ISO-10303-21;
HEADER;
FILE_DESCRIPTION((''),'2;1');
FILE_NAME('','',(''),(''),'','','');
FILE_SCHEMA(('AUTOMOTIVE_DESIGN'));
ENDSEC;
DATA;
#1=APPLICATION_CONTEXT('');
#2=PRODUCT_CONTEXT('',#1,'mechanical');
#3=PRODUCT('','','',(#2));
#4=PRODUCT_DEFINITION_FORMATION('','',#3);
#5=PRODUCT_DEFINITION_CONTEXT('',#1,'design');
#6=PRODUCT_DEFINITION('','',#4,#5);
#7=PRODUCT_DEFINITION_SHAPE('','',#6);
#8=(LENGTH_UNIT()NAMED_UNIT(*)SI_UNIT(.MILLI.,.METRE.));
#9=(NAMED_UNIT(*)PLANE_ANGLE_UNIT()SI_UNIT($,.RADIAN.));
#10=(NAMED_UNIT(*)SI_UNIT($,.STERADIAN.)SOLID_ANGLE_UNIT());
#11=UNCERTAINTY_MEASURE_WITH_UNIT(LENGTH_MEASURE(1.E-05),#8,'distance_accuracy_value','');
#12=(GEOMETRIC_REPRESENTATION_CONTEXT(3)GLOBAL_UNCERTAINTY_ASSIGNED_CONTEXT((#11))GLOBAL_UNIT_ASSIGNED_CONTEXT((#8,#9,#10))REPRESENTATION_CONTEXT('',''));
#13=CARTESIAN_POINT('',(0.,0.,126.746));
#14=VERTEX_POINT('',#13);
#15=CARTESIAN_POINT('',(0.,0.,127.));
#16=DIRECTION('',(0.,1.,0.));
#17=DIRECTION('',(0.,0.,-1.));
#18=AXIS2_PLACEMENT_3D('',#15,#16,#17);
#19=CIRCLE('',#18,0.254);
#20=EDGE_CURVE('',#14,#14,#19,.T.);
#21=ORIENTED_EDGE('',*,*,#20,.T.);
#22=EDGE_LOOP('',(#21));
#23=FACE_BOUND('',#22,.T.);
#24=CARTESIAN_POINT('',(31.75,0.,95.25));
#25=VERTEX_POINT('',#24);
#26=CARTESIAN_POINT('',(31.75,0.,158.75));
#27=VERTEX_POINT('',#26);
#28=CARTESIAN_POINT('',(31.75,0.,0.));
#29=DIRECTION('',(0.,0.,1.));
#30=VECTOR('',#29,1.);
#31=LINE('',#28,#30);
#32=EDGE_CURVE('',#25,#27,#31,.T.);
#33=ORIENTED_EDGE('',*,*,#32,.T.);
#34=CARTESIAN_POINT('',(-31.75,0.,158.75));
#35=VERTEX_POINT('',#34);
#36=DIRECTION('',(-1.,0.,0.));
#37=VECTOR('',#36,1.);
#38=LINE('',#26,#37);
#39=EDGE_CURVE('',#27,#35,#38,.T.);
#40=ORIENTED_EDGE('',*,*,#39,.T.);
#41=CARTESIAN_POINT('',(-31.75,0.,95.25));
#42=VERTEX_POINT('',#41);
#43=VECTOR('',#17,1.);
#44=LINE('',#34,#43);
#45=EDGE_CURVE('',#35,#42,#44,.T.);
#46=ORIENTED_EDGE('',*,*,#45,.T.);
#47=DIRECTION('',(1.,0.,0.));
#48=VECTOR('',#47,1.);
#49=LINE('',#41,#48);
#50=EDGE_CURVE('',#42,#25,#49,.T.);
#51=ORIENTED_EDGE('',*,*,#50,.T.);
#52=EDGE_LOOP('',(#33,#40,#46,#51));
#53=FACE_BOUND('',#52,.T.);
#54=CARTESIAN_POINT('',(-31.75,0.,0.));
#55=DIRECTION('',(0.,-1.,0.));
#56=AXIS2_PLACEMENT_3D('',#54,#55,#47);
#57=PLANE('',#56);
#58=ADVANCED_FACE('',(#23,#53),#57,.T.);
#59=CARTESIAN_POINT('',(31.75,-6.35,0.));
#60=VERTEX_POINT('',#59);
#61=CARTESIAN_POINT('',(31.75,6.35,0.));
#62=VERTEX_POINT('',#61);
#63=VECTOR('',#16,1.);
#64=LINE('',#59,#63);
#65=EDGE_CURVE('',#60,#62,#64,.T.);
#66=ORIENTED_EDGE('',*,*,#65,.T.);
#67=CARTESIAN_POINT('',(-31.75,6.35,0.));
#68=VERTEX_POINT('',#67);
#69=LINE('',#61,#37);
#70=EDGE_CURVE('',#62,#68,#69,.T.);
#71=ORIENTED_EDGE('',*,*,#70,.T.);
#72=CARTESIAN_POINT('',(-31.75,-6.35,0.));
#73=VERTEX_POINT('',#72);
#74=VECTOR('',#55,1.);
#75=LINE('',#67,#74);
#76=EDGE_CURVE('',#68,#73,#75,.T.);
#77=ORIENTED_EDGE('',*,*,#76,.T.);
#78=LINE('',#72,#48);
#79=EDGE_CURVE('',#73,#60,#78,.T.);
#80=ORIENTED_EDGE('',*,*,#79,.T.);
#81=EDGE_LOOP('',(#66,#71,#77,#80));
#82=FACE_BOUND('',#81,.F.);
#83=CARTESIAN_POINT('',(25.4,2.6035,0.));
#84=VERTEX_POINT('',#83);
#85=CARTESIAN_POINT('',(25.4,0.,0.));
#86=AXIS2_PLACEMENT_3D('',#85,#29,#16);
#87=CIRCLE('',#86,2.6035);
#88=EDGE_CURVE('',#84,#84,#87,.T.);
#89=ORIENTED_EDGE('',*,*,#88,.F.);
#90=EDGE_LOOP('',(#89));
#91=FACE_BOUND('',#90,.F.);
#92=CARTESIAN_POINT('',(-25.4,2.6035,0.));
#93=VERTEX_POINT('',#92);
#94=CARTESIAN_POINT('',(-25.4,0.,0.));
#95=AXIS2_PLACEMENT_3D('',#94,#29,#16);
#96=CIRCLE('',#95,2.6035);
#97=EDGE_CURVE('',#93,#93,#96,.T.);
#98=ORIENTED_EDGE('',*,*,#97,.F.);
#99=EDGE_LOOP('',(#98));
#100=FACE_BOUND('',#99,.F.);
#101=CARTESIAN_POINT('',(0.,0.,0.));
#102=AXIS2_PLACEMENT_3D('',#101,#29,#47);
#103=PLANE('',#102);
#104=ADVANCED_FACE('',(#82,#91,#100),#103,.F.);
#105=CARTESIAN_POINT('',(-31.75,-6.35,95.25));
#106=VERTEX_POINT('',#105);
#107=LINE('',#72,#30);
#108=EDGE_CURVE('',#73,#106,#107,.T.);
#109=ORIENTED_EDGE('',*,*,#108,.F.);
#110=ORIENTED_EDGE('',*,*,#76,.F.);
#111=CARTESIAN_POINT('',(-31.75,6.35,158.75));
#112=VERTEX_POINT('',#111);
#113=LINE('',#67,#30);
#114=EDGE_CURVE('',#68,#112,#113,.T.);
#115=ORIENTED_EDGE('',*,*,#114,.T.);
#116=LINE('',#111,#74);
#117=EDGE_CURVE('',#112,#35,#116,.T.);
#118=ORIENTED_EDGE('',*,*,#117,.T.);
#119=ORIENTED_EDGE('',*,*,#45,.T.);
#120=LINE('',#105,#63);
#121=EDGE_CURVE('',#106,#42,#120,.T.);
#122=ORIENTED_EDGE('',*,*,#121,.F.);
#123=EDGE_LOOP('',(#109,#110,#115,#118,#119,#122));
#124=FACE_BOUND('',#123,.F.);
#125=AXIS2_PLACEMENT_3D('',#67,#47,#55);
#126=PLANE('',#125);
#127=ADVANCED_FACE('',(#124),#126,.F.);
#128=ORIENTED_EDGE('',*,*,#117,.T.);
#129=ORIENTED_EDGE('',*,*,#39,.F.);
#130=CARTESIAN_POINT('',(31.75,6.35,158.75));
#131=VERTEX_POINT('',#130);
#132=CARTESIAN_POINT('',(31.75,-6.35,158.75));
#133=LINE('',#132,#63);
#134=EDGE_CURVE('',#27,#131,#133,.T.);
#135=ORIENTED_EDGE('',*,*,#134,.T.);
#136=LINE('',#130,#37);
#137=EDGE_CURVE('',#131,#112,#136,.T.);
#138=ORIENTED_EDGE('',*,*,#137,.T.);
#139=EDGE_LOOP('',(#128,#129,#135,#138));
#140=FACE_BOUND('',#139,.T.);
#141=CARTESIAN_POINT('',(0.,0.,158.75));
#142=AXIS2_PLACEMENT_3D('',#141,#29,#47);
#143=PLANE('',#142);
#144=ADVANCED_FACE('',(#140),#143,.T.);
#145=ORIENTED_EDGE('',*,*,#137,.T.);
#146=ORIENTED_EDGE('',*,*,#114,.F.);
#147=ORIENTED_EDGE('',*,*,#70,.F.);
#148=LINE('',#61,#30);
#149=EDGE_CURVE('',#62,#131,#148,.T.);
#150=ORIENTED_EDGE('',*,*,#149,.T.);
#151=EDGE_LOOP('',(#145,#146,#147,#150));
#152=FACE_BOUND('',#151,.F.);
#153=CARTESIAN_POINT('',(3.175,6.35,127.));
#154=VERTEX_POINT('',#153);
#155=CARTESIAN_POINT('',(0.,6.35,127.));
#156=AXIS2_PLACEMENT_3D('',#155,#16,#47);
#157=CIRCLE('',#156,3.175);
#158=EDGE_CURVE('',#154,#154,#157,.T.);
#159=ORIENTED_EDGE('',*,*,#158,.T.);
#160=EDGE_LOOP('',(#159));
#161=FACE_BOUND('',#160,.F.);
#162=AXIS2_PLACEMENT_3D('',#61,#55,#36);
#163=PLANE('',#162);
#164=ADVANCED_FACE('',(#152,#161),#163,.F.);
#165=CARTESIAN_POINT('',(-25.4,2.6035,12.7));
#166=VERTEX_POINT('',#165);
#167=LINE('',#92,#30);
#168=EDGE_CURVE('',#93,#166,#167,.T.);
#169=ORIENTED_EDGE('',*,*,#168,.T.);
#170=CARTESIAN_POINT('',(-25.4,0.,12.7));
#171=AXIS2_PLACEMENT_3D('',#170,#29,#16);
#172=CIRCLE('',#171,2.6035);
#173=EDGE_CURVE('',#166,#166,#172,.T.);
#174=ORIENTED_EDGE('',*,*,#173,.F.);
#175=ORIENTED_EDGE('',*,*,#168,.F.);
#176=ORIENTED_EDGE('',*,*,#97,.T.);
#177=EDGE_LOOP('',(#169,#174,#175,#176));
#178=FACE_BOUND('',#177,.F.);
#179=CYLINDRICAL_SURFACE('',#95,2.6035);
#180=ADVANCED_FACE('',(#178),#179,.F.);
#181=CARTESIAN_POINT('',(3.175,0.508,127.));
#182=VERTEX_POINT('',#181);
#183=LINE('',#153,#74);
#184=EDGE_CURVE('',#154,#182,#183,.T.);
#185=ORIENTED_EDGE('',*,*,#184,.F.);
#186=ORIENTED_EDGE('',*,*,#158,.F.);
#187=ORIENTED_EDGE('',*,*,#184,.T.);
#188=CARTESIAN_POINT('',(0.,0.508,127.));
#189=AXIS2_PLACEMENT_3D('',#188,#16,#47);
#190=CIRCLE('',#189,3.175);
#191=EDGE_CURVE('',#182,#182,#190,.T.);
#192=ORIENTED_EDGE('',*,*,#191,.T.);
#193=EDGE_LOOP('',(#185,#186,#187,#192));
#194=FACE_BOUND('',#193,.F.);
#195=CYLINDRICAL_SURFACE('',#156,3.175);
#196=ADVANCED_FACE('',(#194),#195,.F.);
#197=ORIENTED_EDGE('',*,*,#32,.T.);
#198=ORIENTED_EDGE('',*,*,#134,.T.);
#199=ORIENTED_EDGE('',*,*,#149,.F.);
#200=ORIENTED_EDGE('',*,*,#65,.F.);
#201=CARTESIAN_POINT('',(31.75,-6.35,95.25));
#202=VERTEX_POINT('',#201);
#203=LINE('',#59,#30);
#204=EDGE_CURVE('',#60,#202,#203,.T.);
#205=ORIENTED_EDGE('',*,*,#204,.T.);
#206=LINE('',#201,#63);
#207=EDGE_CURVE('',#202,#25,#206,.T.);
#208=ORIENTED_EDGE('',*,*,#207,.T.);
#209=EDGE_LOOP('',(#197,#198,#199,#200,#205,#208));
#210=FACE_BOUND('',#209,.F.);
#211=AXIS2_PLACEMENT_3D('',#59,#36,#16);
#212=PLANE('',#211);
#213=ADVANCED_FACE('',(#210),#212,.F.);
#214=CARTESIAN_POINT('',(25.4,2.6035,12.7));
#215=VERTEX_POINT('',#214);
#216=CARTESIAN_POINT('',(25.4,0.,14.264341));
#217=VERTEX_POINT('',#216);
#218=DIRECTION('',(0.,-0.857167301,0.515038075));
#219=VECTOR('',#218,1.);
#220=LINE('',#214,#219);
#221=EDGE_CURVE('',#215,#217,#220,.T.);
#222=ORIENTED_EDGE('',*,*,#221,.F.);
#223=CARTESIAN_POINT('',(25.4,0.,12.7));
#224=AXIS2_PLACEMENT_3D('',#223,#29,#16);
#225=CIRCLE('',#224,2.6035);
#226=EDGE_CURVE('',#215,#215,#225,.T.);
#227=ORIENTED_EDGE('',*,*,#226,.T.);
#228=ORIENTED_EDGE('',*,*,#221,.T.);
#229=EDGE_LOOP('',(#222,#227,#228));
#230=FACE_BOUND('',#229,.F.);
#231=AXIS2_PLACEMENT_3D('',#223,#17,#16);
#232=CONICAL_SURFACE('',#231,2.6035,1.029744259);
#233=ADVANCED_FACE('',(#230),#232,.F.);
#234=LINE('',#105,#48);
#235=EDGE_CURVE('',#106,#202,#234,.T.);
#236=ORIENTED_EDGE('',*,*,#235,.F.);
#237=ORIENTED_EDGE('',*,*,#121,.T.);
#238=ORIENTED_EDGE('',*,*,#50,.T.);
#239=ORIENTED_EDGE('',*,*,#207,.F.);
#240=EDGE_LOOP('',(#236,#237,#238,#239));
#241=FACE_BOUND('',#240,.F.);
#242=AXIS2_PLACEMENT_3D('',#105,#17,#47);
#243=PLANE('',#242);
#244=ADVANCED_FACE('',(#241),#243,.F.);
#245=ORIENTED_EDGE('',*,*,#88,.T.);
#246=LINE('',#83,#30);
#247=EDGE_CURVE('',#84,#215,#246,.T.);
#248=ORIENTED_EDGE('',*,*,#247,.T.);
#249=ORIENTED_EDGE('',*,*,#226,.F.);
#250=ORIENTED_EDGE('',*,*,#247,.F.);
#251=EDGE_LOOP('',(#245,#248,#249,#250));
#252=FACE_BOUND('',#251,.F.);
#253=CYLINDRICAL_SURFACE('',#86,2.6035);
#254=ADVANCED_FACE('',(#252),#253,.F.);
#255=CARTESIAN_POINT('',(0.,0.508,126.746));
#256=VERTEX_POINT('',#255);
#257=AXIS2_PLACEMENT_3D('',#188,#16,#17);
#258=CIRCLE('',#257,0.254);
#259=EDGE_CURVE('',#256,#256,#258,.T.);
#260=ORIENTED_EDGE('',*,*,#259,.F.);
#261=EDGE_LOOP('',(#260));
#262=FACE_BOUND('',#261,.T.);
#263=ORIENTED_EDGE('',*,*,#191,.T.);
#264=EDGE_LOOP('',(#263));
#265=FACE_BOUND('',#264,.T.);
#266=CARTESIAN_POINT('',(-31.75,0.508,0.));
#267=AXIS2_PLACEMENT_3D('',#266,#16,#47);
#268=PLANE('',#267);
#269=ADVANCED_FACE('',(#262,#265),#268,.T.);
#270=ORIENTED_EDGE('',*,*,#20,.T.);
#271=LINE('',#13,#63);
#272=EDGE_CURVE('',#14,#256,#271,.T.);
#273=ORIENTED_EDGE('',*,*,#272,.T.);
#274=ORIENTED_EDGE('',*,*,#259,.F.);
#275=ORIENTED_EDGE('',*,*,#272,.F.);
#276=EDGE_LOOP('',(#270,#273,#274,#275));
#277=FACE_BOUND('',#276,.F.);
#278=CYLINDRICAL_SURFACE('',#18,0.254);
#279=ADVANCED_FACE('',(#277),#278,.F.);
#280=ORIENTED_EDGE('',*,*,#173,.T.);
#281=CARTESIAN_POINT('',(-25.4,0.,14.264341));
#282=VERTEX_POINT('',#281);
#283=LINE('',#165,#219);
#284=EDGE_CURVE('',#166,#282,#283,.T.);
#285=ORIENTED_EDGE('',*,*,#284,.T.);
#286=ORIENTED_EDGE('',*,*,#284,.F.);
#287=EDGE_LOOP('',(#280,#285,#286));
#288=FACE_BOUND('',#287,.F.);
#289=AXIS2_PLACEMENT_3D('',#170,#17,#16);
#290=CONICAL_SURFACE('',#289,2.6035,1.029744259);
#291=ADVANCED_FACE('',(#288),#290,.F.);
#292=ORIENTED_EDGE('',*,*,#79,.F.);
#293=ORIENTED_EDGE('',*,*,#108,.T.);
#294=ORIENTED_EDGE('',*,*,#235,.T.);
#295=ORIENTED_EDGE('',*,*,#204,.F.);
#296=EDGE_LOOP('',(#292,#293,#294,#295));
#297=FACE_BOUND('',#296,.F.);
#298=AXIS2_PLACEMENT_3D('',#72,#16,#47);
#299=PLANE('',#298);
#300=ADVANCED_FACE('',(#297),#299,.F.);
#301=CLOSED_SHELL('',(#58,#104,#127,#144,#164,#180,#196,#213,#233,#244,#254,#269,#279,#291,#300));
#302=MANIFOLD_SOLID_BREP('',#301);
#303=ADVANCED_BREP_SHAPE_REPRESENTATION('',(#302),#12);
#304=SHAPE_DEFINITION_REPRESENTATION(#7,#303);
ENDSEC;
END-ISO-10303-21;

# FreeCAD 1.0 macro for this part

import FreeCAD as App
import Part
import Sketcher
from FreeCAD import Vector
Q = App.Units.Quantity


def add_polygon(sketch, points):
    """Adds a closed chain of lines whose ends are joined by coincident constraints."""
    first, n = sketch.GeometryCount, len(points)
    for a, b in zip(points, points[1:] + points[:1]):
        sketch.addGeometry(Part.LineSegment(App.Vector(*a, 0), App.Vector(*b, 0)), False)
    for i in range(n):
        sketch.addConstraint(Sketcher.Constraint("Coincident", first + i, 2, first + (i + 1) % n, 1))

doc = App.newDocument("Part")
params = doc.addObject("Spreadsheet::Sheet", "Params")
for row, (alias, value) in enumerate([
    ("sketch1_width", "2.5 in"),
    ("sketch1_height", "0.5 in"),
    ("pad1_length", "6.25 in"),
    ("sketch2_width", "2.5 in"),
    ("pocket1_length", "0.25 in"),
    ("sketch3_diameter", "0.205 in"),
    ("hole_diameter", "0.205 in"),
    ("hole_depth", "0.5 in"),
    ("sketch4_diameter", "0.25 in"),
    ("pocket2_length", "0.23 in"),
    ("sketch5_diameter", "0.02 in"),
    ("hole2_diameter", "0.02 in"),
], start=1):
    params.set(f"A{row}", alias)
    params.set(f"B{row}", "=" + value)
    params.setAlias(f"B{row}", alias)

body = doc.addObject("PartDesign::Body", "Body")

# Sketch on XY plane
sketch1 = body.newObject("Sketcher::SketchObject", "Sketch")
sketch1.AttachmentSupport = (doc.getObject("XY_Plane"), [""])
sketch1.MapMode = "FlatFace"
add_polygon(sketch1, [(-32, 6), (-32, -6), (32, -6), (32, 6)])  # lines 0-3
sketch1.addConstraint(Sketcher.Constraint("Vertical", 0))
sketch1.addConstraint(Sketcher.Constraint("Horizontal", 1))
sketch1.addConstraint(Sketcher.Constraint("Vertical", 2))
sketch1.addConstraint(Sketcher.Constraint("Horizontal", 3))
sketch1.addConstraint(Sketcher.Constraint("Symmetric", 0, 2, 2, 2, -1, 1))
sketch1.addConstraint(Sketcher.Constraint("DistanceX", 1, 1, 1, 2, Q("2.5 in")))
sketch1.addConstraint(Sketcher.Constraint("DistanceY", 0, 2, 0, 1, Q("0.5 in")))
sketch1.setExpression("Constraints[9]", "Params.sketch1_width")
sketch1.setExpression("Constraints[10]", "Params.sketch1_height")
pad1 = body.newObject("PartDesign::Pad", "Pad")
pad1.Profile = sketch1
pad1.setExpression("Length", "Params.pad1_length")

# Sketch on XZ plane
sketch2 = body.newObject("Sketcher::SketchObject", "Sketch001")
sketch2.AttachmentSupport = (doc.getObject("XZ_Plane"), [""])
sketch2.MapMode = "FlatFace"
sketch2.AttachmentOffset = App.Placement(Vector(0, 0, 0.25 * 25.4), App.Rotation())
add_polygon(sketch2, [(-32, 95), (32, 95), (32, 159), (-32, 159)])  # lines 0-3
sketch2.addConstraint(Sketcher.Constraint("Horizontal", 0))
sketch2.addConstraint(Sketcher.Constraint("Vertical", 1))
sketch2.addConstraint(Sketcher.Constraint("Horizontal", 2))
sketch2.addConstraint(Sketcher.Constraint("Vertical", 3))
sketch2.addConstraint(Sketcher.Constraint("Equal", 2, 1))
sketch2.addConstraint(Sketcher.Constraint("DistanceX", 0, 1, 0, 2, Q("2.5 in")))
sketch2.addConstraint(Sketcher.Constraint("DistanceX", -1, 1, 0, 2, Q("1.25 in")))
sketch2.addConstraint(Sketcher.Constraint("DistanceY", -1, 1, 0, 2, Q("3.75 in")))
sketch2.setExpression("Constraints[9]", "Params.sketch2_width")
pocket1 = body.newObject("PartDesign::Pocket", "Pocket")
pocket1.Profile = sketch2
pocket1.setExpression("Length", "Params.pocket1_length")

# Sketch on XY plane
sketch3 = body.newObject("Sketcher::SketchObject", "Sketch002")
sketch3.AttachmentSupport = (doc.getObject("XY_Plane"), [""])
sketch3.MapMode = "FlatFace"
sketch3.addGeometry(Part.Circle(Vector(25.4, 0, 0), Vector(0, 0, 1), 2.6), False)
sketch3.addGeometry(Part.Circle(Vector(-25.4, 0, 0), Vector(0, 0, 1), 2.6), False)
sketch3.addConstraint(Sketcher.Constraint("Equal", 0, 1))
sketch3.addConstraint(Sketcher.Constraint("Symmetric", 0, 3, 1, 3, -1, 1))
sketch3.addConstraint(Sketcher.Constraint("PointOnObject", 0, 3, -1))
sketch3.addConstraint(Sketcher.Constraint("Diameter", 0, Q("0.205 in")))
sketch3.addConstraint(Sketcher.Constraint("DistanceX", -1, 1, 0, 3, Q("1 in")))
sketch3.setExpression("Constraints[3]", "Params.sketch3_diameter")
doc.recompute()
hole = body.newObject("PartDesign::Hole", "Hole")
hole.Profile = sketch3
hole.ThreadType = "None"
hole.setExpression("Diameter", "Params.hole_diameter")
hole.DepthType = "Dimension"
hole.setExpression("Depth", "Params.hole_depth")
hole.DrillPoint = "Angled"
hole.DrillPointAngle = 118
hole.Reversed = True

# Sketch on XZ plane
sketch4 = body.newObject("Sketcher::SketchObject", "Sketch003")
sketch4.AttachmentSupport = (doc.getObject("XZ_Plane"), [""])
sketch4.MapMode = "FlatFace"
sketch4.AttachmentOffset = App.Placement(Vector(0, 0, -0.25 * 25.4), App.Rotation())
sketch4.addGeometry(Part.Circle(Vector(0, 127, 0), Vector(0, 0, 1), 3.2), False)
sketch4.addConstraint(Sketcher.Constraint("PointOnObject", 0, 3, -2))
sketch4.addConstraint(Sketcher.Constraint("Diameter", 0, Q("0.25 in")))
sketch4.addConstraint(Sketcher.Constraint("DistanceY", -1, 1, 0, 3, Q("5 in")))
sketch4.setExpression("Constraints[1]", "Params.sketch4_diameter")
pocket2 = body.newObject("PartDesign::Pocket", "Pocket001")
pocket2.Profile = sketch4
pocket2.setExpression("Length", "Params.pocket2_length")
pocket2.Reversed = True

# Sketch on XZ plane
sketch5 = body.newObject("Sketcher::SketchObject", "Sketch004")
sketch5.AttachmentSupport = (doc.getObject("XZ_Plane"), [""])
sketch5.MapMode = "FlatFace"
sketch5.addGeometry(Part.Circle(Vector(0, 127, 0), Vector(0, 0, 1), 0.25), False)
sketch5.addConstraint(Sketcher.Constraint("PointOnObject", 0, 3, -2))
sketch5.addConstraint(Sketcher.Constraint("Diameter", 0, Q("0.02 in")))
sketch5.addConstraint(Sketcher.Constraint("DistanceY", -1, 1, 0, 3, Q("5 in")))
sketch5.setExpression("Constraints[1]", "Params.sketch5_diameter")
doc.recompute()
hole2 = body.newObject("PartDesign::Hole", "Hole001")
hole2.Profile = sketch5
hole2.ThreadType = "None"
hole2.setExpression("Diameter", "Params.hole2_diameter")
hole2.DepthType = "ThroughAll"

doc.recompute()
